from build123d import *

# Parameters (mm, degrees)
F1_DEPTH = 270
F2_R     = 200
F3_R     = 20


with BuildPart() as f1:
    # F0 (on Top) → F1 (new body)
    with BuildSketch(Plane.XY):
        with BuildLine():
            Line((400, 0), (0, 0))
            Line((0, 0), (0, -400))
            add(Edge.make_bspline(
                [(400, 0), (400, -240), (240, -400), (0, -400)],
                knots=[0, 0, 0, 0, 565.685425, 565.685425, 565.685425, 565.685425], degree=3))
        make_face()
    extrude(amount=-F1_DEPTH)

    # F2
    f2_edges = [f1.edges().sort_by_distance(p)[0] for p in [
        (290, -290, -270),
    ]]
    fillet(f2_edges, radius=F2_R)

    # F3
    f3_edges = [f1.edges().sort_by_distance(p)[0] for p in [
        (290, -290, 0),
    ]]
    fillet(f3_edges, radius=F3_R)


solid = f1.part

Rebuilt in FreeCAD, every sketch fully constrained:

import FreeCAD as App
import Part
import Sketcher


def edges_at(feature, points):
    """Names of the edges that pass closest to the given points."""
    edges = feature.Shape.Edges
    near = lambda p: min(range(len(edges)), key=lambda i: edges[i].distToShape(Part.Vertex(*p))[0])
    return sorted({f"Edge{near(p) + 1}" for p in points})

doc = App.newDocument("Part")
body = doc.addObject("PartDesign::Body", "Body")

# Sketch on XY plane
sketch1 = body.newObject("Sketcher::SketchObject", "Sketch")
sketch1.AttachmentSupport = (doc.getObject("XY_Plane"), [""])
sketch1.MapMode = "FlatFace"
sketch1.addGeometry([
    Part.LineSegment(App.Vector(400, 0, 0), App.Vector(0, 0, 0)),
    Part.LineSegment(App.Vector(0, 0, 0), App.Vector(0, -400, 0)),
    Part.BSplineCurve([App.Vector(400, 0, 0), App.Vector(400, -240, 0), App.Vector(240, -400, 0), App.Vector(0, -400, 0)], [4, 4], [0, 565.685425], False, 3, [1, 1, 1, 1], False),
], False)
sketch1.addConstraint([
    Sketcher.Constraint("Block", 2),
    Sketcher.Constraint("Coincident", 0, 2, 1, 1),
    Sketcher.Constraint("Coincident", 1, 2, 2, 2),
    Sketcher.Constraint("Coincident", 2, 1, 0, 1),
    Sketcher.Constraint("Horizontal", 0),
    Sketcher.Constraint("Vertical", 1),
])
pad1 = body.newObject("PartDesign::Pad", "Pad")
pad1.Profile = sketch1
pad1.Length = 270
pad1.Reversed = True
doc.recompute()

fillet = body.newObject("PartDesign::Fillet", "Fillet")
fillet.Base = (pad1, edges_at(pad1, [(290, -290, -270)]))
fillet.Radius = 200
doc.recompute()

fillet2 = body.newObject("PartDesign::Fillet", "Fillet001")
fillet2.Base = (fillet, edges_at(fillet, [(290, -290, 0)]))
fillet2.Radius = 20

doc.recompute()
